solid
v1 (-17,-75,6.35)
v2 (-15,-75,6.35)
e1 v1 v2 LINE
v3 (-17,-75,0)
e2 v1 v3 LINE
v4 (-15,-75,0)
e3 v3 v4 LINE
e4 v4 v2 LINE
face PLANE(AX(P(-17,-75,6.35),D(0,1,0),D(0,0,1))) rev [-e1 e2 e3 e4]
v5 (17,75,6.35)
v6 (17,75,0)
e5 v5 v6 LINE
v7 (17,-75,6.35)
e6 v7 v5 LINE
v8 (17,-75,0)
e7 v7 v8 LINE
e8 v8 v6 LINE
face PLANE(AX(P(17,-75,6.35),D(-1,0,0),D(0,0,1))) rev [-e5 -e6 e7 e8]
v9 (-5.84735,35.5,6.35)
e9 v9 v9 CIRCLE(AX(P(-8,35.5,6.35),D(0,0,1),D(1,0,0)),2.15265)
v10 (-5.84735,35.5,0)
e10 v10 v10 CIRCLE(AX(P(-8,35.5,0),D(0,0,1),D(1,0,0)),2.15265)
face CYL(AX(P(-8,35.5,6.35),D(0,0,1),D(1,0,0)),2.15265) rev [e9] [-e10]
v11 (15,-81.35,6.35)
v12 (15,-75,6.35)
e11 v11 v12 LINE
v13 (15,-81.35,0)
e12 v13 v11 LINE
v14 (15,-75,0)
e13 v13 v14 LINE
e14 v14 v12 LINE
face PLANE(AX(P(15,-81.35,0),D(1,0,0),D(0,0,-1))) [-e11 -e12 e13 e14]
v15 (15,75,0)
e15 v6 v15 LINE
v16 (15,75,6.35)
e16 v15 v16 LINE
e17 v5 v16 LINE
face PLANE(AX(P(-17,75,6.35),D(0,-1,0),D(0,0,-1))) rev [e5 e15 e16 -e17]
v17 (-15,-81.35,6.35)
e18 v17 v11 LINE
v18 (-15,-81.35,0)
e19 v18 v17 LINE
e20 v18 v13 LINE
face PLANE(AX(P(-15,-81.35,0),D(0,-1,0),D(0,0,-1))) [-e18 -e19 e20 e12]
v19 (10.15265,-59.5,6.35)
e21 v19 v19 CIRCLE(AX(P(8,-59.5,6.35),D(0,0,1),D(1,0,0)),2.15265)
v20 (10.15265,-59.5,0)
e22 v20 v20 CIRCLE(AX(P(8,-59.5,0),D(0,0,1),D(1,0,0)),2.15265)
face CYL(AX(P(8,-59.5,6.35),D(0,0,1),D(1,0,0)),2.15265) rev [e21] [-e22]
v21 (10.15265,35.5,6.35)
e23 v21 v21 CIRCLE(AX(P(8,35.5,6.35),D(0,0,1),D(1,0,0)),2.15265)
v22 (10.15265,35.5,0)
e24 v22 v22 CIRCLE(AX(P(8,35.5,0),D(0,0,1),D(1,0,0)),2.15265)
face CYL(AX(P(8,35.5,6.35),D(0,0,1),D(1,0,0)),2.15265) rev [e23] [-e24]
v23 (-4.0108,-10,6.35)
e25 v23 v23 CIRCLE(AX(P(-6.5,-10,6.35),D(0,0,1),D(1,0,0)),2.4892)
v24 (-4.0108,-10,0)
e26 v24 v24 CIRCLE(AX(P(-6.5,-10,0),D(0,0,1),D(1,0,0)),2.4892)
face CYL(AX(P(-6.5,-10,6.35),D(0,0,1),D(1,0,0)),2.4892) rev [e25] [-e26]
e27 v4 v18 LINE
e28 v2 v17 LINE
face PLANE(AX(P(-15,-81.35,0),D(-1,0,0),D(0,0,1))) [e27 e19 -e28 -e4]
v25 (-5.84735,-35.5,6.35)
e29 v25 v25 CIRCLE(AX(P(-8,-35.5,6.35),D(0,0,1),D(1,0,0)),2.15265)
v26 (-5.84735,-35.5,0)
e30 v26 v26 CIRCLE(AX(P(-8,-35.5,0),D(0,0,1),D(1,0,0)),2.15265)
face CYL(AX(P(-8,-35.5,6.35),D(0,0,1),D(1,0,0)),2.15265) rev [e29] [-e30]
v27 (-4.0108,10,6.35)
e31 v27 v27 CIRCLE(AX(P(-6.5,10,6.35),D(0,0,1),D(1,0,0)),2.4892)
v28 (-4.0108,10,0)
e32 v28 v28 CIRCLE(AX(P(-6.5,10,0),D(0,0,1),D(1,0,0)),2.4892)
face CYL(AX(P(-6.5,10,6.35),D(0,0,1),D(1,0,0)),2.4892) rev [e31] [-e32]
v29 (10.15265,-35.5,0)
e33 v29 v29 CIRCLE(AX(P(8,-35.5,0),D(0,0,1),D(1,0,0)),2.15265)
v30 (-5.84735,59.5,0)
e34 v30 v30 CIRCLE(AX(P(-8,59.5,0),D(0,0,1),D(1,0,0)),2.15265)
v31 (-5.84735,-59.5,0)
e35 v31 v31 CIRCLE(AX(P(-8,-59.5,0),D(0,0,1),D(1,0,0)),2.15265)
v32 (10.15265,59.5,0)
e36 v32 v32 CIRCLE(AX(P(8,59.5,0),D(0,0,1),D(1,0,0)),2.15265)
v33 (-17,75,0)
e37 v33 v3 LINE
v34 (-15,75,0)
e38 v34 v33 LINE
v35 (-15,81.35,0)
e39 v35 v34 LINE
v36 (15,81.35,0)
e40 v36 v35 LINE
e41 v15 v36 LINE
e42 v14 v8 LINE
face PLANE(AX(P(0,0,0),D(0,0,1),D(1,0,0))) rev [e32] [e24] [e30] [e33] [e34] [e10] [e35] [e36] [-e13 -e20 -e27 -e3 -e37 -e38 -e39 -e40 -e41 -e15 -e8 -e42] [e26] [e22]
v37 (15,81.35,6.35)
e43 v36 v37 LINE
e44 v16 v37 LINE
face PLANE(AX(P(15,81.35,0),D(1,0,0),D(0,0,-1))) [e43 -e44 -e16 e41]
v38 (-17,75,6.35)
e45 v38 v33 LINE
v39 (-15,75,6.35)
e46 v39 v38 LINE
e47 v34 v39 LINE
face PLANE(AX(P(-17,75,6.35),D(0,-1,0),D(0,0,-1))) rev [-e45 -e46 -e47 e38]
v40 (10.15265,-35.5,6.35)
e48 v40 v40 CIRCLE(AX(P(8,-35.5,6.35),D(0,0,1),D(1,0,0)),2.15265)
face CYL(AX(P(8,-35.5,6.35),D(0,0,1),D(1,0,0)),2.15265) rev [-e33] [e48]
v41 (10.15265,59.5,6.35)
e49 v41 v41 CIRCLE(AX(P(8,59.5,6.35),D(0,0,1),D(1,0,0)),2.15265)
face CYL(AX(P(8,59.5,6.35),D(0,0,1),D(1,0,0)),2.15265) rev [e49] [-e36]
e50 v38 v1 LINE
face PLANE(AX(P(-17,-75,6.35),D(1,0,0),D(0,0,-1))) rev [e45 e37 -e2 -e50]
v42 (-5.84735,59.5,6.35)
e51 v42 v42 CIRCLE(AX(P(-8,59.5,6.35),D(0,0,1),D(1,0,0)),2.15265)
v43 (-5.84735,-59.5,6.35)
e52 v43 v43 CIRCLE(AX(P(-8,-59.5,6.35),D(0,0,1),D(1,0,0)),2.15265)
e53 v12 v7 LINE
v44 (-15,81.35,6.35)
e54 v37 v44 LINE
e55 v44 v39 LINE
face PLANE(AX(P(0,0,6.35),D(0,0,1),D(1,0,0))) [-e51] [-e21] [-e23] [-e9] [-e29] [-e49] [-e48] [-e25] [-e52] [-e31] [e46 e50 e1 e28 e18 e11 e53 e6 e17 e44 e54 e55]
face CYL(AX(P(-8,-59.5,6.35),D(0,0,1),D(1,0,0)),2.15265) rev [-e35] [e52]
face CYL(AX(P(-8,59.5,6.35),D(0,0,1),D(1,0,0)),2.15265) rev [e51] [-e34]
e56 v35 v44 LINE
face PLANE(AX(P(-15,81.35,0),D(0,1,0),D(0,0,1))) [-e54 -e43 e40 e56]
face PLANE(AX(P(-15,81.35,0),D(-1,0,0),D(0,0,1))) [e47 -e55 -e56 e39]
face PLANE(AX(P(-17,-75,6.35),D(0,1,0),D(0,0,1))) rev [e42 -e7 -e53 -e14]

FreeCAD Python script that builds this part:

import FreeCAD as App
import Part
import Sketcher

V = App.Vector


def add_polygon(sketch, points):
    """Adds a closed chain of lines whose ends are joined by coincident constraints."""
    first, n = sketch.GeometryCount, len(points)
    for a, b in zip(points, points[1:] + points[:1]):
        sketch.addGeometry(Part.LineSegment(App.Vector(*a, 0), App.Vector(*b, 0)), False)
    for i in range(n):
        sketch.addConstraint(Sketcher.Constraint("Coincident", first + i, 2, first + (i + 1) % n, 1))

doc = App.newDocument("Part")
body = doc.addObject("PartDesign::Body", "Body")

# Sketch on XY plane
sketch1 = body.newObject("Sketcher::SketchObject", "Sketch")
sketch1.AttachmentSupport = (doc.getObject("XY_Plane"), [""])
sketch1.MapMode = "FlatFace"
add_polygon(sketch1, [(-17, 75), (-17, -75), (17, -75), (17, 75)])  # lines 0-3
sketch1.addConstraint([
    Sketcher.Constraint("Vertical", 0),
    Sketcher.Constraint("Horizontal", 1),
    Sketcher.Constraint("Vertical", 2),
    Sketcher.Constraint("Horizontal", 3),
    Sketcher.Constraint("Symmetric", 0, 2, 2, 2, -1, 1),
    Sketcher.Constraint("DistanceX", 1, 1, 1, 2, 34.0),
    Sketcher.Constraint("DistanceY", 0, 2, 0, 1, 150.0),
])
pad1 = body.newObject("PartDesign::Pad", "Pad")
pad1.Profile = sketch1
pad1.Length = 6.35

# Sketch on XY plane
sketch2 = body.newObject("Sketcher::SketchObject", "Sketch001")
sketch2.AttachmentSupport = (doc.getObject("XY_Plane"), [""])
sketch2.MapMode = "FlatFace"
sketch2.AttachmentOffset = App.Placement(V(0, 0, 6.35), App.Rotation())
add_polygon(sketch2, [(-15, 81.35), (-15, 75), (15, 75), (15, 81.35)])  # lines 0-3
add_polygon(sketch2, [(-15, -75), (-15, -81.35), (15, -81.35), (15, -75)])  # lines 4-7
sketch2.addConstraint([
    Sketcher.Constraint("Vertical", 0),
    Sketcher.Constraint("Horizontal", 1),
    Sketcher.Constraint("Vertical", 2),
    Sketcher.Constraint("Horizontal", 3),
    Sketcher.Constraint("Vertical", 4),
    Sketcher.Constraint("Horizontal", 5),
    Sketcher.Constraint("Vertical", 6),
    Sketcher.Constraint("Horizontal", 7),
    Sketcher.Constraint("Symmetric", 2, 2, 4, 2, -1, 1),
    Sketcher.Constraint("Symmetric", 0, 2, 6, 2, -1, 1),
    Sketcher.Constraint("Vertical", 3, 2, 4, 2),
    Sketcher.Constraint("DistanceX", 1, 1, 1, 2, 30.0),
    Sketcher.Constraint("DistanceY", -1, 1, 0, 2, 75.0),
    Sketcher.Constraint("DistanceY", 0, 2, 0, 1, 6.35),
])
pad2 = body.newObject("PartDesign::Pad", "Pad001")
pad2.Profile = sketch2
pad2.Length = 6.35
pad2.Reversed = True

# Sketch on XY plane
sketch3 = body.newObject("Sketcher::SketchObject", "Sketch002")
sketch3.AttachmentSupport = (doc.getObject("XY_Plane"), [""])
sketch3.MapMode = "FlatFace"
sketch3.AttachmentOffset = App.Placement(V(0, 0, 6.35), App.Rotation())
sketch3.addGeometry([
    Part.Circle(V(-8, 59.5, 0), V(0, 0, 1), 2.15265),  # 0
    Part.Circle(V(8, 59.5, 0), V(0, 0, 1), 2.15265),  # 1
    Part.Circle(V(8, 35.5, 0), V(0, 0, 1), 2.15265),  # 2
    Part.Circle(V(-8, 35.5, 0), V(0, 0, 1), 2.15265),  # 3
    Part.Circle(V(-8, -35.5, 0), V(0, 0, 1), 2.15265),  # 4
    Part.Circle(V(-8, -59.5, 0), V(0, 0, 1), 2.15265),  # 5
    Part.Circle(V(8, -59.5, 0), V(0, 0, 1), 2.15265),  # 6
    Part.Circle(V(8, -35.5, 0), V(0, 0, 1), 2.15265),  # 7
], False)
sketch3.addConstraint([
    Sketcher.Constraint("Equal", 0, 1),
    Sketcher.Constraint("Equal", 1, 2),
    Sketcher.Constraint("Equal", 2, 3),
    Sketcher.Constraint("Equal", 3, 4),
    Sketcher.Constraint("Equal", 4, 5),
    Sketcher.Constraint("Equal", 5, 6),
    Sketcher.Constraint("Equal", 6, 7),
    Sketcher.Constraint("Symmetric", 2, 3, 4, 3, -1, 1),
    Sketcher.Constraint("Symmetric", 1, 3, 5, 3, -1, 1),
    Sketcher.Constraint("Symmetric", 0, 3, 6, 3, -1, 1),
    Sketcher.Constraint("Symmetric", 3, 3, 7, 3, -1, 1),
    Sketcher.Constraint("Symmetric", 0, 3, 1, 3, -2),
    Sketcher.Constraint("Symmetric", 2, 3, 3, 3, -2),
    Sketcher.Constraint("Vertical", 1, 3, 2, 3),
    Sketcher.Constraint("DistanceX", 0, 3, -1, 1, 8.0),
    Sketcher.Constraint("DistanceY", 2, 3, 1, 3, 24.0),
    Sketcher.Constraint("DistanceY", 4, 3, 3, 3, 71.0),
    Sketcher.Constraint("Diameter", 0, 4.3053),
])
doc.recompute()
hole = body.newObject("PartDesign::Hole", "Hole")
hole.Profile = sketch3
hole.ThreadType = "None"
hole.Diameter = 4.3053
hole.DepthType = "ThroughAll"

# Sketch on XY plane
sketch4 = body.newObject("Sketcher::SketchObject", "Sketch003")
sketch4.AttachmentSupport = (doc.getObject("XY_Plane"), [""])
sketch4.MapMode = "FlatFace"
sketch4.AttachmentOffset = App.Placement(V(0, 0, 6.35), App.Rotation())
sketch4.addGeometry([
    Part.Circle(V(-6.5, 10, 0), V(0, 0, 1), 2.4892),
    Part.Circle(V(-6.5, -10, 0), V(0, 0, 1), 2.4892),
], False)
sketch4.addConstraint([
    Sketcher.Constraint("Equal", 0, 1),
    Sketcher.Constraint("Symmetric", 0, 3, 1, 3, -1),
    Sketcher.Constraint("DistanceY", -1, 1, 0, 3, 10.0),
    Sketcher.Constraint("Diameter", 0, 4.9784),
    Sketcher.Constraint("DistanceX", 0, 3, -1, 1, 6.5),
])
doc.recompute()
hole2 = body.newObject("PartDesign::Hole", "Hole001")
hole2.Profile = sketch4
hole2.ThreadType = "None"
hole2.Diameter = 4.9784
hole2.DepthType = "ThroughAll"

doc.recompute()
